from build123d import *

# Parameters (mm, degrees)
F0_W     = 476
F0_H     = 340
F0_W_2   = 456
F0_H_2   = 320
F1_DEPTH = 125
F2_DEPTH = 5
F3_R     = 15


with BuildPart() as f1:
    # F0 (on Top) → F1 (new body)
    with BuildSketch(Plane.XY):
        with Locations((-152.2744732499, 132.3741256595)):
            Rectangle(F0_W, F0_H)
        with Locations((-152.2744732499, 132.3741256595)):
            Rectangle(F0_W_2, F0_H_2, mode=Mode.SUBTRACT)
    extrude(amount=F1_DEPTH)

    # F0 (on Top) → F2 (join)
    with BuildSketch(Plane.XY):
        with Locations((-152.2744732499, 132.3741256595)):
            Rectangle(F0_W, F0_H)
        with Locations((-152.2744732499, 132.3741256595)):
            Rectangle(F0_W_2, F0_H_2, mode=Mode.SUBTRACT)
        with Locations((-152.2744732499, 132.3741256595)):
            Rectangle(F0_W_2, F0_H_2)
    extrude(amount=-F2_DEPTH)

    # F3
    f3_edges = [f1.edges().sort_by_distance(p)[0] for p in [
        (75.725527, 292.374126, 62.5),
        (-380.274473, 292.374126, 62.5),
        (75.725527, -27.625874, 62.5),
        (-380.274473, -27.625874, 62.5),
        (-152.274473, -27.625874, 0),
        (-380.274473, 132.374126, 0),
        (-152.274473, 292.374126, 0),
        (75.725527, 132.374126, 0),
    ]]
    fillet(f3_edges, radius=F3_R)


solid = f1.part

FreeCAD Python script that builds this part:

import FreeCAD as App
import Part
import Sketcher
from FreeCAD import Vector
Q = App.Units.Quantity


def edges_at(feature, points):
    """Names of the edges that pass closest to the given points."""
    edges = feature.Shape.Edges
    near = lambda p: min(range(len(edges)), key=lambda i: edges[i].distToShape(Part.Vertex(*p))[0])
    return sorted({f"Edge{near(p) + 1}" for p in points})


def add_polygon(sketch, points):
    """Adds a closed chain of lines whose ends are joined by coincident constraints."""
    first, n = sketch.GeometryCount, len(points)
    for a, b in zip(points, points[1:] + points[:1]):
        sketch.addGeometry(Part.LineSegment(App.Vector(*a, 0), App.Vector(*b, 0)), False)
    for i in range(n):
        sketch.addConstraint(Sketcher.Constraint("Coincident", first + i, 2, first + (i + 1) % n, 1))

doc = App.newDocument("Part")
body = doc.addObject("PartDesign::Body", "Body")

# Sketch on XY plane
sketch1 = body.newObject("Sketcher::SketchObject", "Sketch")
sketch1.AttachmentSupport = (doc.getObject("XY_Plane"), [""])
sketch1.MapMode = "FlatFace"
add_polygon(sketch1, [(-390, 302), (-390, -38), (86, -38), (86, 302)])  # lines 0-3
add_polygon(sketch1, [(76, -28), (-380, -28), (-380, 292), (76, 292)])  # lines 4-7
sketch1.addConstraint(Sketcher.Constraint("Vertical", 0))
sketch1.addConstraint(Sketcher.Constraint("Horizontal", 1))
sketch1.addConstraint(Sketcher.Constraint("Vertical", 2))
sketch1.addConstraint(Sketcher.Constraint("Horizontal", 3))
sketch1.addConstraint(Sketcher.Constraint("Horizontal", 4))
sketch1.addConstraint(Sketcher.Constraint("Vertical", 5))
sketch1.addConstraint(Sketcher.Constraint("Horizontal", 6))
sketch1.addConstraint(Sketcher.Constraint("Vertical", 7))
sketch1.addConstraint(Sketcher.Constraint("DistanceX", 1, 1, 1, 2, Q("476 mm")))
sketch1.addConstraint(Sketcher.Constraint("DistanceX", 4, 2, 4, 1, Q("456 mm")))
sketch1.addConstraint(Sketcher.Constraint("DistanceY", 0, 2, 0, 1, Q("340 mm")))
sketch1.addConstraint(Sketcher.Constraint("DistanceY", 5, 1, 5, 2, Q("320 mm")))
sketch1.addConstraint(Sketcher.Constraint("DistanceX", 0, 2, 4, 2, Q("10 mm")))
sketch1.addConstraint(Sketcher.Constraint("DistanceY", 0, 2, 4, 2, Q("10 mm")))
sketch1.addConstraint(Sketcher.Constraint("DistanceX", 0, 2, -1, 1, Q("390.274473 mm")))
sketch1.addConstraint(Sketcher.Constraint("DistanceY", 0, 2, -1, 1, Q("37.625874 mm")))
pad1 = body.newObject("PartDesign::Pad", "Pad")
pad1.Profile = sketch1
pad1.Length = 125

# Sketch on XY plane
sketch2 = body.newObject("Sketcher::SketchObject", "Sketch001")
sketch2.AttachmentSupport = (doc.getObject("XY_Plane"), [""])
sketch2.MapMode = "FlatFace"
add_polygon(sketch2, [(-390, 302), (-390, -38), (86, -38), (86, 302)])  # lines 0-3
sketch2.addConstraint(Sketcher.Constraint("Vertical", 0))
sketch2.addConstraint(Sketcher.Constraint("Horizontal", 1))
sketch2.addConstraint(Sketcher.Constraint("Vertical", 2))
sketch2.addConstraint(Sketcher.Constraint("Horizontal", 3))
sketch2.addConstraint(Sketcher.Constraint("DistanceX", 1, 1, 1, 2, Q("476 mm")))
sketch2.addConstraint(Sketcher.Constraint("DistanceY", 0, 2, 0, 1, Q("340 mm")))
sketch2.addConstraint(Sketcher.Constraint("DistanceX", 0, 2, -1, 1, Q("390.274473 mm")))
sketch2.addConstraint(Sketcher.Constraint("DistanceY", 0, 2, -1, 1, Q("37.625874 mm")))
pad2 = body.newObject("PartDesign::Pad", "Pad001")
pad2.Profile = sketch2
pad2.Length = 5
pad2.Reversed = True
doc.recompute()

fillet = body.newObject("PartDesign::Fillet", "Fillet")
fillet.Base = (pad2, edges_at(pad2, [
    (75.726, 292.374, 62.5),
    (-380.274, 292.374, 62.5),
    (75.726, -27.626, 62.5),
    (-380.274, -27.626, 62.5),
    (-152.274, -27.626, 0),
    (-380.274, 132.374, 0),
    (-152.274, 292.374, 0),
    (75.726, 132.374, 0),
]))
fillet.Radius = 15

doc.recompute()
